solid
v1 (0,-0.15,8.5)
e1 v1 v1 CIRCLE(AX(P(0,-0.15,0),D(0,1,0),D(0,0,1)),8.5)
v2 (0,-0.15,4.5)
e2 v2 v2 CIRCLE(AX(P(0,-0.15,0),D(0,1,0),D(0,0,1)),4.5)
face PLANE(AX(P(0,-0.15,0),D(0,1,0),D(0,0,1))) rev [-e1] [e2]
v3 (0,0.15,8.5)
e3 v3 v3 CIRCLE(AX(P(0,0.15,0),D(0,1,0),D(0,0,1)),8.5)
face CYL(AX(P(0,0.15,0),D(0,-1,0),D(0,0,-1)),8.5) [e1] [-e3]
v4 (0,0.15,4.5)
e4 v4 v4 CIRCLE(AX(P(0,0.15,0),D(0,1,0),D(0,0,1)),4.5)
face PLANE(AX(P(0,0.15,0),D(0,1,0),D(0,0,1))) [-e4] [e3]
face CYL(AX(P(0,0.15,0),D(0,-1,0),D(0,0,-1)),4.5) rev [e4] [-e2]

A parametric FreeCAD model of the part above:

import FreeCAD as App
import Part
import Sketcher
Q = App.Units.Quantity

doc = App.newDocument("Part")
body = doc.addObject("PartDesign::Body", "Body")

sketch1 = body.newObject("Sketcher::SketchObject", "Sketch")
sketch1.AttachmentSupport = (doc.getObject("XZ_Plane"), [""])
sketch1.MapMode = "FlatFace"
sketch1.addGeometry(Part.Circle(App.Vector(0, 0, 0), App.Vector(0, 0, 1), 8.5), False)
sketch1.addGeometry(Part.Circle(App.Vector(0, 0, 0), App.Vector(0, 0, 1), 4.5), False)
sketch1.addConstraint(Sketcher.Constraint("Coincident", 0, 3, -1, 1))
sketch1.addConstraint(Sketcher.Constraint("Coincident", 1, 3, -1, 1))
sketch1.addConstraint(Sketcher.Constraint("Diameter", 0, Q("17 mm")))
sketch1.addConstraint(Sketcher.Constraint("Diameter", 1, Q("9 mm")))
pad1 = body.newObject("PartDesign::Pad", "Pad")
pad1.Profile = sketch1
pad1.Length = 0.3
pad1.Midplane = True

doc.recompute()
